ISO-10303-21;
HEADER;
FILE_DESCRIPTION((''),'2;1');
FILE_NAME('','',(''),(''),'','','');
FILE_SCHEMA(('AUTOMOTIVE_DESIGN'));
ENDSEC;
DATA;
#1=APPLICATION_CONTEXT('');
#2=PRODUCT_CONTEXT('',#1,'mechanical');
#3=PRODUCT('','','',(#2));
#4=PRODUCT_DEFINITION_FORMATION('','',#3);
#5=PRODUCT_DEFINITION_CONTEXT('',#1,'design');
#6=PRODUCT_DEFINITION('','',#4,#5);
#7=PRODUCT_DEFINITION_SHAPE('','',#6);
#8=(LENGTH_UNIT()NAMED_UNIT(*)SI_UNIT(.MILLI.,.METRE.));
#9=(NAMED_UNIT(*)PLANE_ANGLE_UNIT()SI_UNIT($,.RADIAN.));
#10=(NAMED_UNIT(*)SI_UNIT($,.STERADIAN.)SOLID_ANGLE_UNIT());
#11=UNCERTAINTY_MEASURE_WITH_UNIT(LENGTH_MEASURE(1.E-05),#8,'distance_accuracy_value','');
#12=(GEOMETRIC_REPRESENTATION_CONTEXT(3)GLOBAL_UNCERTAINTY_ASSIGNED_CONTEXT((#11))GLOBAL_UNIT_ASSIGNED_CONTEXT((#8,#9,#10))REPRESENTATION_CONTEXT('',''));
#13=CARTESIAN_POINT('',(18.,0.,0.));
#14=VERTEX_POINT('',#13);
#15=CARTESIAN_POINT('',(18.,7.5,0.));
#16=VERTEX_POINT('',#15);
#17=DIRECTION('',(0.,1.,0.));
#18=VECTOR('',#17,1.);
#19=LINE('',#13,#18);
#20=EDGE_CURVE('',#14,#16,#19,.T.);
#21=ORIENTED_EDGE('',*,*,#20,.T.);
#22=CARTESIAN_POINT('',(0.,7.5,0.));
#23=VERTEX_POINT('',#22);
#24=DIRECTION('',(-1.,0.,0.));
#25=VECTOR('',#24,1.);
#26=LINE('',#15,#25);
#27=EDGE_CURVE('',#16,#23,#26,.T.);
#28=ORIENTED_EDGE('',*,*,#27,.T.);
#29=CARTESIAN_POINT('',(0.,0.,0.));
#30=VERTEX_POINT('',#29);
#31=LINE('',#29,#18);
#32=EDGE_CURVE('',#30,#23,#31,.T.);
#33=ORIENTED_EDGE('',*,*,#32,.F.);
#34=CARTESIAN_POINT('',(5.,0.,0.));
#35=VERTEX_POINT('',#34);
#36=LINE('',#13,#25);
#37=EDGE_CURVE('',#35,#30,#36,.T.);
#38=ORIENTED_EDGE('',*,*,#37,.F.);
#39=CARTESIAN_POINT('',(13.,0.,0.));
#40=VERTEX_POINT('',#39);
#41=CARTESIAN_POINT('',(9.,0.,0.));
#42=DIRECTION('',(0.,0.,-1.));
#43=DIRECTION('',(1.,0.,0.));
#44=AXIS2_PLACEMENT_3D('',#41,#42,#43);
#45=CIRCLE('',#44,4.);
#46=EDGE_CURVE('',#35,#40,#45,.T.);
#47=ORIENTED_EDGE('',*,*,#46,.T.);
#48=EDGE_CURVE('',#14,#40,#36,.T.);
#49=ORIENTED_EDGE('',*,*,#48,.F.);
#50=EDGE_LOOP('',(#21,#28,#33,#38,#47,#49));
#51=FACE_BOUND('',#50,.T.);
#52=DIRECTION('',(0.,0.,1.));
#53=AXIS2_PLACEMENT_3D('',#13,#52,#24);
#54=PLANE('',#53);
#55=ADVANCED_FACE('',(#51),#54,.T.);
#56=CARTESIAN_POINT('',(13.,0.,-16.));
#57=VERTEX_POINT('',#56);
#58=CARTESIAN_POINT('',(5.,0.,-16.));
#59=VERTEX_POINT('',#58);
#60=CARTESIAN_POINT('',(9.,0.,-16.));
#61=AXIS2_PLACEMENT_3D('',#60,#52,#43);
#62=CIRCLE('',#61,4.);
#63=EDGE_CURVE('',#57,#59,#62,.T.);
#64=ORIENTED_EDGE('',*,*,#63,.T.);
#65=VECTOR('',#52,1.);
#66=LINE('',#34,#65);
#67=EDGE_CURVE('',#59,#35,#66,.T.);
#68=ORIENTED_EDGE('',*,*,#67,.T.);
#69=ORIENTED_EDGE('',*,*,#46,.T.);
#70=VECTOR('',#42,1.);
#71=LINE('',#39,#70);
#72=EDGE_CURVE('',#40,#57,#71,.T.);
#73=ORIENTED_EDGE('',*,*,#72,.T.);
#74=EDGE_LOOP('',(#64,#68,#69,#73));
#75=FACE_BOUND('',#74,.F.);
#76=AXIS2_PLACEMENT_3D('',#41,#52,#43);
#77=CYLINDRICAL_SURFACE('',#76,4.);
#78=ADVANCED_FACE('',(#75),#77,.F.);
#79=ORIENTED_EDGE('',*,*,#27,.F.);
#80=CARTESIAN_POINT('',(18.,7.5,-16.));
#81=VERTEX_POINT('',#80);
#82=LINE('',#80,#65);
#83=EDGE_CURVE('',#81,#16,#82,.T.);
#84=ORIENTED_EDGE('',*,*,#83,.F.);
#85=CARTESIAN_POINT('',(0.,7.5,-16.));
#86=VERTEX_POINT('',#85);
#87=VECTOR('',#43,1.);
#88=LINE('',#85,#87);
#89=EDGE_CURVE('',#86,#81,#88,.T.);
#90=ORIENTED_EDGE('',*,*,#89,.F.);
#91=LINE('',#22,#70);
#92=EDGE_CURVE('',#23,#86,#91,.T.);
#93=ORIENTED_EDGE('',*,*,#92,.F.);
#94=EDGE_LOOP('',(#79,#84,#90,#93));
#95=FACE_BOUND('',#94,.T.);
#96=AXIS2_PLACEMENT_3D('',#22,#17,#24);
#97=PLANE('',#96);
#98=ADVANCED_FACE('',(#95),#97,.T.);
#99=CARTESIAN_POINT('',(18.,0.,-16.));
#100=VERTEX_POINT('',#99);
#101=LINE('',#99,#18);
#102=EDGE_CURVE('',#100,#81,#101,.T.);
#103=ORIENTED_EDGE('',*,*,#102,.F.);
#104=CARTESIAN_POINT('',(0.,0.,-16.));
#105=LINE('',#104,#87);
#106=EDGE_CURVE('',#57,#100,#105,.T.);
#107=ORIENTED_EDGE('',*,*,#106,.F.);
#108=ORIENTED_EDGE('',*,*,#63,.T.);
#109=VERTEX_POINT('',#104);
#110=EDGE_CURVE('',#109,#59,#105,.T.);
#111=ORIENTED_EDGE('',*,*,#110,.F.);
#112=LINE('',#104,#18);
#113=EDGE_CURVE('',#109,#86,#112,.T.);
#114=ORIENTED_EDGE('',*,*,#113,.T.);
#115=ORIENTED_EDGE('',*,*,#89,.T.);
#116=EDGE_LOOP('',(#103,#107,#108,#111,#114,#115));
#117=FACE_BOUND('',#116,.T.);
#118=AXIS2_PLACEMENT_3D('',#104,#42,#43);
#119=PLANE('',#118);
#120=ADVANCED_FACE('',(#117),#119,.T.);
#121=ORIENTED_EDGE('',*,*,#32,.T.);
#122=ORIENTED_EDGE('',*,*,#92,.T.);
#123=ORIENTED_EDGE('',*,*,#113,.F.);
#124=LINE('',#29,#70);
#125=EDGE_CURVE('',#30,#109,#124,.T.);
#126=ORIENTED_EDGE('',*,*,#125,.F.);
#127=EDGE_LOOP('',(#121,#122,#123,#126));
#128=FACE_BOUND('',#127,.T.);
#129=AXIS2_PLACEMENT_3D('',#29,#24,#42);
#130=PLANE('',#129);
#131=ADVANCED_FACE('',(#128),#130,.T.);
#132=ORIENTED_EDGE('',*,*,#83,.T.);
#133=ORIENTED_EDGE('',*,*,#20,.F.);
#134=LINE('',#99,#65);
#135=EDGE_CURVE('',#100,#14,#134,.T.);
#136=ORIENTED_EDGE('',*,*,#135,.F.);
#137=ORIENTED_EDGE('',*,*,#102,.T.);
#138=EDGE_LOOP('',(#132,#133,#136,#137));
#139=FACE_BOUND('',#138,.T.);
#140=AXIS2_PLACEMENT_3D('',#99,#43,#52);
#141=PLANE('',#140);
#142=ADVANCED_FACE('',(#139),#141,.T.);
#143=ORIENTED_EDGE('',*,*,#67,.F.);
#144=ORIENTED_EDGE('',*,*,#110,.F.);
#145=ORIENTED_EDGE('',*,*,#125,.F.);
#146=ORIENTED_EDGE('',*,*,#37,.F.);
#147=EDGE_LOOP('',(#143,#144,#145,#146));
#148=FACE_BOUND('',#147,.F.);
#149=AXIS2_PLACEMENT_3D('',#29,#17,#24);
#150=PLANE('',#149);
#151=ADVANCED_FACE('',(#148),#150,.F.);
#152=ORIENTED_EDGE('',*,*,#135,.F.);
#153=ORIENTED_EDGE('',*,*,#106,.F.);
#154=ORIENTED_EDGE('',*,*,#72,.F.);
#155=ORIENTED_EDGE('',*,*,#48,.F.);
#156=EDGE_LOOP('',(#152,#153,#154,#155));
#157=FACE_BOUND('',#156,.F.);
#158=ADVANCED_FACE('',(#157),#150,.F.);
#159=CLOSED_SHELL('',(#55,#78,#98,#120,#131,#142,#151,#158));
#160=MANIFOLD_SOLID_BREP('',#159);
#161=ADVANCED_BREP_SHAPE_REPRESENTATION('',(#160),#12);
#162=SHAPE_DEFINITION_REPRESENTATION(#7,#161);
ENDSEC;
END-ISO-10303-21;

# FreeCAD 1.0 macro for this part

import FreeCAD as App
import Part
import Sketcher
Q = App.Units.Quantity


def add_polygon(sketch, points):
    """Adds a closed chain of lines whose ends are joined by coincident constraints."""
    first, n = sketch.GeometryCount, len(points)
    for a, b in zip(points, points[1:] + points[:1]):
        sketch.addGeometry(Part.LineSegment(App.Vector(*a, 0), App.Vector(*b, 0)), False)
    for i in range(n):
        sketch.addConstraint(Sketcher.Constraint("Coincident", first + i, 2, first + (i + 1) % n, 1))

doc = App.newDocument("Part")
body = doc.addObject("PartDesign::Body", "Body")

sketch1 = doc.addObject("Sketcher::SketchObject", "Sketch")
body.addObject(sketch1)
sketch1.AttachmentSupport = (doc.XZ_Plane, [""])
sketch1.MapMode = "FlatFace"
add_polygon(sketch1, [(0, -16), (0, 0), (18, 0), (18, -16)])
sketch1.addConstraint([
    Sketcher.Constraint("Vertical", 0),
    Sketcher.Constraint("Horizontal", 1),
    Sketcher.Constraint("Vertical", 2),
    Sketcher.Constraint("Horizontal", 3),
    Sketcher.Constraint("Coincident", 0, 2, -1, 1),
    Sketcher.Constraint("DistanceX", 1, 1, 1, 2, Q("18 mm")),
    Sketcher.Constraint("DistanceY", 0, 1, 0, 2, Q("16 mm")),
])
pad1 = doc.addObject("PartDesign::Pad", "Pad")
body.addObject(pad1)
pad1.Profile = sketch1
pad1.Length = 7.5
pad1.Reversed = True

sketch2 = doc.addObject("Sketcher::SketchObject", "Sketch001")
body.addObject(sketch2)
sketch2.AttachmentSupport = (doc.XY_Plane, [""])
sketch2.MapMode = "FlatFace"
sketch2.addGeometry(Part.Circle(App.Vector(9, 0, 0), App.Vector(0, 0, 1), 4), False)
sketch2.addConstraint([
    Sketcher.Constraint("PointOnObject", 0, 3, -1),
    Sketcher.Constraint("Diameter", 0, Q("8 mm")),
    Sketcher.Constraint("DistanceX", -1, 1, 0, 3, Q("9 mm")),
])
pocket1 = doc.addObject("PartDesign::Pocket", "Pocket")
body.addObject(pocket1)
pocket1.Profile = sketch2
pocket1.Type = "ThroughAll"

doc.recompute()
